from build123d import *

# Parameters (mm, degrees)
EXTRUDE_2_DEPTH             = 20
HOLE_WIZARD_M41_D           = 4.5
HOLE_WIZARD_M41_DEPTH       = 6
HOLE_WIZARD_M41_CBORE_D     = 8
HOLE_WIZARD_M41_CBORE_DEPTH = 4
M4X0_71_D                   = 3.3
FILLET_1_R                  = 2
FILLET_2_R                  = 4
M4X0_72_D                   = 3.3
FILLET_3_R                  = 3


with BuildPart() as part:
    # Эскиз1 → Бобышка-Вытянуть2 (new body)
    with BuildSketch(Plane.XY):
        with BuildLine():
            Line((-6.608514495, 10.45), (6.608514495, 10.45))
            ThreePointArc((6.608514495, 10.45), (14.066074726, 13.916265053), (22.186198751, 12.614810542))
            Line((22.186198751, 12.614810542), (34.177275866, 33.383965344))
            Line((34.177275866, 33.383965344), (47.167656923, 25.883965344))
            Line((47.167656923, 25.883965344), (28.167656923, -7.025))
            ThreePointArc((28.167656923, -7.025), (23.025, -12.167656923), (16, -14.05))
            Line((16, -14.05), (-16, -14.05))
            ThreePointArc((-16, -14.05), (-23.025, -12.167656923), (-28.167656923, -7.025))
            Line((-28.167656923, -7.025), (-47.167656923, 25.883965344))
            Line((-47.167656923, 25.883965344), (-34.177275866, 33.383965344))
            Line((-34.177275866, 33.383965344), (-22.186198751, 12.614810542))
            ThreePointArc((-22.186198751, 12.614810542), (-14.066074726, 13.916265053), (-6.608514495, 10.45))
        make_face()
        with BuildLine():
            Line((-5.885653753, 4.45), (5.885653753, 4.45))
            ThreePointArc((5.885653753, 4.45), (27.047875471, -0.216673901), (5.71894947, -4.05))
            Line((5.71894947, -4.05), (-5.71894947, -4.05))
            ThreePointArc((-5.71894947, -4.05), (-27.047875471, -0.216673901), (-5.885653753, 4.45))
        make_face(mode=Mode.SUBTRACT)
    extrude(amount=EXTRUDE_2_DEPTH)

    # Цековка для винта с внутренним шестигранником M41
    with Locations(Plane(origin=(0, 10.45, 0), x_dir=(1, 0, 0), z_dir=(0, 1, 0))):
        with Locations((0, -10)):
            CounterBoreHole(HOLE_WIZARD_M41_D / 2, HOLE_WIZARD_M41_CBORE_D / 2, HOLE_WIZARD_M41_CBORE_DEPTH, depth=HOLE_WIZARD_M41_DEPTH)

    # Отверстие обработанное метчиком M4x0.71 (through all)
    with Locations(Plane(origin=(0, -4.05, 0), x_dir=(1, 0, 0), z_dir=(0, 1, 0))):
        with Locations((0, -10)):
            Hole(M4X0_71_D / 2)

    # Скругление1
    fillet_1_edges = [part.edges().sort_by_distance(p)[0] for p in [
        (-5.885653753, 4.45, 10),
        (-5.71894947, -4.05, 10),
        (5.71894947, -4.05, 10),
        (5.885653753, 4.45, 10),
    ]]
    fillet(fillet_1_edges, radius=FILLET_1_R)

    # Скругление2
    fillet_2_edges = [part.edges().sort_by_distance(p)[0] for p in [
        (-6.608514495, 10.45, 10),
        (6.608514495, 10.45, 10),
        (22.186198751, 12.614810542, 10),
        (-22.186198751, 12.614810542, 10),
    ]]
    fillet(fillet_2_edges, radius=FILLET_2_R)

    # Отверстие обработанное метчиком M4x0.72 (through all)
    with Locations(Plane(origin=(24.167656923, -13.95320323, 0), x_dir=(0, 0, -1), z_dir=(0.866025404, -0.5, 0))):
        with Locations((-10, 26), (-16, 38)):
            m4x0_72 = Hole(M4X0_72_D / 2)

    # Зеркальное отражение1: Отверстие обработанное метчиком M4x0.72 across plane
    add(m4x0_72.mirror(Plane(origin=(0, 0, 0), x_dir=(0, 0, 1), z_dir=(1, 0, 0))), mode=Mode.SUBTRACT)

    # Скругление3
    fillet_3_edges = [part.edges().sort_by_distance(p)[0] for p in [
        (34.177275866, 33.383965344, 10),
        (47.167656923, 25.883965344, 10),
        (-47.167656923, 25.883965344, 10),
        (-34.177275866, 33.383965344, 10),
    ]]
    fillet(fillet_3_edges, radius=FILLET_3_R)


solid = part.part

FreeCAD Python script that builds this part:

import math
import FreeCAD as App
import Part
import Sketcher
Q = App.Units.Quantity


def edges_at(feature, points):
    """Names of the edges that pass closest to the given points."""
    edges = feature.Shape.Edges
    near = lambda p: min(range(len(edges)), key=lambda i: edges[i].distToShape(Part.Vertex(*p))[0])
    return sorted({f"Edge{near(p) + 1}" for p in points})

doc = App.newDocument("Part")
body = doc.addObject("PartDesign::Body", "Body")

# Sketch on XY plane
sketch1 = body.newObject("Sketcher::SketchObject", "Sketch")
sketch1.AttachmentSupport = (doc.getObject("XY_Plane"), [""])
sketch1.MapMode = "FlatFace"
sketch1.addGeometry([
    Part.LineSegment(App.Vector(6.608514, 10.45, 0), App.Vector(-6.608514, 10.45, 0)),  # 0
    Part.ArcOfCircle(Part.Circle(App.Vector(-16, 0, 0), App.Vector(0, 0, 1), 14.05), math.radians(48.053752), math.radians(116.12295)),  # 1
    Part.LineSegment(App.Vector(-22.186199, 12.614811, 0), App.Vector(-34.177276, 33.383965, 0)),  # 2
    Part.LineSegment(App.Vector(-34.177276, 33.383965, 0), App.Vector(-47.167657, 25.883965, 0)),  # 3
    Part.LineSegment(App.Vector(-47.167657, 25.883965, 0), App.Vector(-28.167657, -7.025, 0)),  # 4
    Part.ArcOfCircle(Part.Circle(App.Vector(-16, 0, 0), App.Vector(0, 0, 1), 14.05), math.radians(-150), math.radians(-90)),  # 5
    Part.LineSegment(App.Vector(-16, -14.05, 0), App.Vector(16, -14.05, 0)),  # 6
    Part.ArcOfCircle(Part.Circle(App.Vector(16, 0, 0), App.Vector(0, 0, 1), 14.05), math.radians(-90), math.radians(-30)),  # 7
    Part.LineSegment(App.Vector(28.167657, -7.025, 0), App.Vector(47.167657, 25.883965, 0)),  # 8
    Part.LineSegment(App.Vector(47.167657, 25.883965, 0), App.Vector(34.177276, 33.383965, 0)),  # 9
    Part.LineSegment(App.Vector(34.177276, 33.383965, 0), App.Vector(22.186199, 12.614811, 0)),  # 10
    Part.ArcOfCircle(Part.Circle(App.Vector(16, 0, 0), App.Vector(0, 0, 1), 14.05), math.radians(63.87705), math.radians(131.946248)),  # 11
    Part.LineSegment(App.Vector(-5.885654, 4.45, 0), App.Vector(5.885654, 4.45, 0)),  # 12
    Part.ArcOfCircle(Part.Circle(App.Vector(16, 0, 0), App.Vector(0, 0, 1), 11.05), math.radians(-158.4991), math.radians(156.251988)),  # 13
    Part.LineSegment(App.Vector(5.718949, -4.05, 0), App.Vector(-5.718949, -4.05, 0)),  # 14
    Part.ArcOfCircle(Part.Circle(App.Vector(-16, 0, 0), App.Vector(0, 0, 1), 11.05), math.radians(23.748012), math.radians(338.4991)),  # 15
], False)
sketch1.addConstraint([
    Sketcher.Constraint("Coincident", 0, 2, 1, 1),
    Sketcher.Constraint("Coincident", 1, 2, 2, 1),
    Sketcher.Constraint("Coincident", 2, 2, 3, 1),
    Sketcher.Constraint("Coincident", 3, 2, 4, 1),
    Sketcher.Constraint("Tangent", 4, 2, 5, 1),
    Sketcher.Constraint("Tangent", 5, 2, 6, 1),
    Sketcher.Constraint("Tangent", 6, 2, 7, 1),
    Sketcher.Constraint("Tangent", 7, 2, 8, 1),
    Sketcher.Constraint("Coincident", 8, 2, 9, 1),
    Sketcher.Constraint("Coincident", 9, 2, 10, 1),
    Sketcher.Constraint("Coincident", 10, 2, 11, 1),
    Sketcher.Constraint("Coincident", 11, 2, 0, 1),
    Sketcher.Constraint("Coincident", 12, 2, 13, 2),
    Sketcher.Constraint("Coincident", 13, 1, 14, 1),
    Sketcher.Constraint("Coincident", 14, 2, 15, 2),
    Sketcher.Constraint("Coincident", 15, 1, 12, 1),
    Sketcher.Constraint("Horizontal", 0),
    Sketcher.Constraint("Horizontal", 6),
    Sketcher.Constraint("Horizontal", 12),
    Sketcher.Constraint("Horizontal", 14),
    Sketcher.Constraint("Coincident", 5, 3, 1, 3),
    Sketcher.Constraint("Coincident", 11, 3, 7, 3),
    Sketcher.Constraint("Coincident", 13, 3, 7, 3),
    Sketcher.Constraint("Coincident", 15, 3, 1, 3),
    Sketcher.Constraint("Equal", 1, 5),
    Sketcher.Constraint("Equal", 5, 7),
    Sketcher.Constraint("Equal", 7, 11),
    Sketcher.Constraint("Equal", 13, 15),
    Sketcher.Constraint("Symmetric", 1, 3, 7, 3, -1, 1),
    Sketcher.Constraint("Symmetric", 3, 2, 8, 2, -2),
    Sketcher.Constraint("Symmetric", 2, 2, 9, 2, -2),
    Sketcher.Constraint("Perpendicular", 2, 3),
    Sketcher.Constraint("Perpendicular", 3, 4),
    Sketcher.Constraint("Perpendicular", 9, 10),
    Sketcher.Constraint("DistanceX", 6, 1, 6, 2, Q("32 mm")),
    Sketcher.Constraint("Angle", 2, Q("120 deg")),
    Sketcher.Constraint("Radius", 1, Q("14.05 mm")),
    Sketcher.Constraint("Radius", 13, Q("11.05 mm")),
    Sketcher.Constraint("Distance", 3, Q("15 mm")),
    Sketcher.Constraint("Distance", 4, Q("38 mm")),
    Sketcher.Constraint("DistanceY", 12, 2, 11, 2, Q("6 mm")),
    Sketcher.Constraint("DistanceY", 6, 2, 13, 1, Q("10 mm")),
    Sketcher.Constraint("DistanceY", 5, 2, 0, 2, Q("24.5 mm")),
])
pad1 = body.newObject("PartDesign::Pad", "Pad")
pad1.Profile = sketch1
pad1.Length = 20

# Sketch on XZ plane
sketch2 = body.newObject("Sketcher::SketchObject", "Sketch001")
sketch2.AttachmentSupport = (doc.getObject("XZ_Plane"), [""])
sketch2.MapMode = "FlatFace"
sketch2.AttachmentOffset = App.Placement(App.Vector(0, 0, -10.45), App.Rotation())
sketch2.addGeometry(Part.Circle(App.Vector(0, 10, 0), App.Vector(0, 0, 1), 2.25), False)
sketch2.addConstraint([
    Sketcher.Constraint("PointOnObject", 0, 3, -2),
    Sketcher.Constraint("Diameter", 0, Q("4.5 mm")),
    Sketcher.Constraint("DistanceY", -1, 1, 0, 3, Q("10 mm")),
])
doc.recompute()
hole = body.newObject("PartDesign::Hole", "Hole")
hole.Profile = sketch2
hole.ThreadType = "None"
hole.Diameter = 4.5
hole.DepthType = "Dimension"
hole.Depth = 6
hole.DrillPoint = "Flat"
hole.HoleCutType = "Counterbore"
hole.HoleCutDiameter = 8
hole.HoleCutDepth = 4
hole.Reversed = True

# Sketch on XZ plane
sketch3 = body.newObject("Sketcher::SketchObject", "Sketch002")
sketch3.AttachmentSupport = (doc.getObject("XZ_Plane"), [""])
sketch3.MapMode = "FlatFace"
sketch3.AttachmentOffset = App.Placement(App.Vector(0, 0, 4.05), App.Rotation())
sketch3.addGeometry(Part.Circle(App.Vector(0, 10, 0), App.Vector(0, 0, 1), 1.65), False)
sketch3.addConstraint([
    Sketcher.Constraint("PointOnObject", 0, 3, -2),
    Sketcher.Constraint("Diameter", 0, Q("3.3 mm")),
    Sketcher.Constraint("DistanceY", -1, 1, 0, 3, Q("10 mm")),
])
doc.recompute()
hole2 = body.newObject("PartDesign::Hole", "Hole001")
hole2.Profile = sketch3
hole2.ThreadType = "None"
hole2.Diameter = 3.3
hole2.DepthType = "ThroughAll"
hole2.Reversed = True
doc.recompute()

fillet = body.newObject("PartDesign::Fillet", "Fillet")
fillet.Base = (hole2, edges_at(hole2, [
    (-5.886, 4.45, 10),
    (-5.719, -4.05, 10),
    (5.719, -4.05, 10),
    (5.886, 4.45, 10),
]))
fillet.Radius = 2
doc.recompute()

fillet2 = body.newObject("PartDesign::Fillet", "Fillet001")
fillet2.Base = (fillet, edges_at(fillet, [
    (-6.609, 10.45, 10),
    (6.609, 10.45, 10),
    (22.186, 12.615, 10),
    (-22.186, 12.615, 10),
]))
fillet2.Radius = 4

# Sketch on an angled plane
sketch4 = body.newObject("Sketcher::SketchObject", "Sketch003")
sketch4.Placement = App.Placement(App.Vector(24.167657, -13.953203, 0), App.Rotation(App.Vector(0, 0, -1), App.Vector(0.5, 0.866025404, 0), App.Vector(0.866025404, -0.5, 0), "ZXY"))
sketch4.addGeometry([
    Part.Circle(App.Vector(-10, 26, 0), App.Vector(0, 0, 1), 1.65),
    Part.Circle(App.Vector(-16, 38, 0), App.Vector(0, 0, 1), 1.65),
], False)
sketch4.addConstraint([
    Sketcher.Constraint("Equal", 0, 1),
    Sketcher.Constraint("Diameter", 0, Q("3.3 mm")),
    Sketcher.Constraint("DistanceX", 0, 3, -1, 1, Q("10 mm")),
    Sketcher.Constraint("DistanceY", -1, 1, 0, 3, Q("26 mm")),
    Sketcher.Constraint("DistanceX", 1, 3, -1, 1, Q("16 mm")),
    Sketcher.Constraint("DistanceY", -1, 1, 1, 3, Q("38 mm")),
])
doc.recompute()
hole3 = body.newObject("PartDesign::Hole", "Hole002")
hole3.Profile = sketch4
hole3.ThreadType = "None"
hole3.Diameter = 3.3
hole3.DepthType = "ThroughAll"
doc.recompute()

mirrored = body.newObject("PartDesign::Mirrored", "Mirrored")
mirrored.Originals = [hole3]
mirrored.MirrorPlane = (doc.getObject("YZ_Plane"), [""])
body.Tip = mirrored
doc.recompute()

fillet3 = body.newObject("PartDesign::Fillet", "Fillet002")
fillet3.Base = (mirrored, edges_at(mirrored, [
    (34.177, 33.384, 10),
    (47.168, 25.884, 10),
    (-47.168, 25.884, 10),
    (-34.177, 33.384, 10),
]))
fillet3.Radius = 3

doc.recompute()
